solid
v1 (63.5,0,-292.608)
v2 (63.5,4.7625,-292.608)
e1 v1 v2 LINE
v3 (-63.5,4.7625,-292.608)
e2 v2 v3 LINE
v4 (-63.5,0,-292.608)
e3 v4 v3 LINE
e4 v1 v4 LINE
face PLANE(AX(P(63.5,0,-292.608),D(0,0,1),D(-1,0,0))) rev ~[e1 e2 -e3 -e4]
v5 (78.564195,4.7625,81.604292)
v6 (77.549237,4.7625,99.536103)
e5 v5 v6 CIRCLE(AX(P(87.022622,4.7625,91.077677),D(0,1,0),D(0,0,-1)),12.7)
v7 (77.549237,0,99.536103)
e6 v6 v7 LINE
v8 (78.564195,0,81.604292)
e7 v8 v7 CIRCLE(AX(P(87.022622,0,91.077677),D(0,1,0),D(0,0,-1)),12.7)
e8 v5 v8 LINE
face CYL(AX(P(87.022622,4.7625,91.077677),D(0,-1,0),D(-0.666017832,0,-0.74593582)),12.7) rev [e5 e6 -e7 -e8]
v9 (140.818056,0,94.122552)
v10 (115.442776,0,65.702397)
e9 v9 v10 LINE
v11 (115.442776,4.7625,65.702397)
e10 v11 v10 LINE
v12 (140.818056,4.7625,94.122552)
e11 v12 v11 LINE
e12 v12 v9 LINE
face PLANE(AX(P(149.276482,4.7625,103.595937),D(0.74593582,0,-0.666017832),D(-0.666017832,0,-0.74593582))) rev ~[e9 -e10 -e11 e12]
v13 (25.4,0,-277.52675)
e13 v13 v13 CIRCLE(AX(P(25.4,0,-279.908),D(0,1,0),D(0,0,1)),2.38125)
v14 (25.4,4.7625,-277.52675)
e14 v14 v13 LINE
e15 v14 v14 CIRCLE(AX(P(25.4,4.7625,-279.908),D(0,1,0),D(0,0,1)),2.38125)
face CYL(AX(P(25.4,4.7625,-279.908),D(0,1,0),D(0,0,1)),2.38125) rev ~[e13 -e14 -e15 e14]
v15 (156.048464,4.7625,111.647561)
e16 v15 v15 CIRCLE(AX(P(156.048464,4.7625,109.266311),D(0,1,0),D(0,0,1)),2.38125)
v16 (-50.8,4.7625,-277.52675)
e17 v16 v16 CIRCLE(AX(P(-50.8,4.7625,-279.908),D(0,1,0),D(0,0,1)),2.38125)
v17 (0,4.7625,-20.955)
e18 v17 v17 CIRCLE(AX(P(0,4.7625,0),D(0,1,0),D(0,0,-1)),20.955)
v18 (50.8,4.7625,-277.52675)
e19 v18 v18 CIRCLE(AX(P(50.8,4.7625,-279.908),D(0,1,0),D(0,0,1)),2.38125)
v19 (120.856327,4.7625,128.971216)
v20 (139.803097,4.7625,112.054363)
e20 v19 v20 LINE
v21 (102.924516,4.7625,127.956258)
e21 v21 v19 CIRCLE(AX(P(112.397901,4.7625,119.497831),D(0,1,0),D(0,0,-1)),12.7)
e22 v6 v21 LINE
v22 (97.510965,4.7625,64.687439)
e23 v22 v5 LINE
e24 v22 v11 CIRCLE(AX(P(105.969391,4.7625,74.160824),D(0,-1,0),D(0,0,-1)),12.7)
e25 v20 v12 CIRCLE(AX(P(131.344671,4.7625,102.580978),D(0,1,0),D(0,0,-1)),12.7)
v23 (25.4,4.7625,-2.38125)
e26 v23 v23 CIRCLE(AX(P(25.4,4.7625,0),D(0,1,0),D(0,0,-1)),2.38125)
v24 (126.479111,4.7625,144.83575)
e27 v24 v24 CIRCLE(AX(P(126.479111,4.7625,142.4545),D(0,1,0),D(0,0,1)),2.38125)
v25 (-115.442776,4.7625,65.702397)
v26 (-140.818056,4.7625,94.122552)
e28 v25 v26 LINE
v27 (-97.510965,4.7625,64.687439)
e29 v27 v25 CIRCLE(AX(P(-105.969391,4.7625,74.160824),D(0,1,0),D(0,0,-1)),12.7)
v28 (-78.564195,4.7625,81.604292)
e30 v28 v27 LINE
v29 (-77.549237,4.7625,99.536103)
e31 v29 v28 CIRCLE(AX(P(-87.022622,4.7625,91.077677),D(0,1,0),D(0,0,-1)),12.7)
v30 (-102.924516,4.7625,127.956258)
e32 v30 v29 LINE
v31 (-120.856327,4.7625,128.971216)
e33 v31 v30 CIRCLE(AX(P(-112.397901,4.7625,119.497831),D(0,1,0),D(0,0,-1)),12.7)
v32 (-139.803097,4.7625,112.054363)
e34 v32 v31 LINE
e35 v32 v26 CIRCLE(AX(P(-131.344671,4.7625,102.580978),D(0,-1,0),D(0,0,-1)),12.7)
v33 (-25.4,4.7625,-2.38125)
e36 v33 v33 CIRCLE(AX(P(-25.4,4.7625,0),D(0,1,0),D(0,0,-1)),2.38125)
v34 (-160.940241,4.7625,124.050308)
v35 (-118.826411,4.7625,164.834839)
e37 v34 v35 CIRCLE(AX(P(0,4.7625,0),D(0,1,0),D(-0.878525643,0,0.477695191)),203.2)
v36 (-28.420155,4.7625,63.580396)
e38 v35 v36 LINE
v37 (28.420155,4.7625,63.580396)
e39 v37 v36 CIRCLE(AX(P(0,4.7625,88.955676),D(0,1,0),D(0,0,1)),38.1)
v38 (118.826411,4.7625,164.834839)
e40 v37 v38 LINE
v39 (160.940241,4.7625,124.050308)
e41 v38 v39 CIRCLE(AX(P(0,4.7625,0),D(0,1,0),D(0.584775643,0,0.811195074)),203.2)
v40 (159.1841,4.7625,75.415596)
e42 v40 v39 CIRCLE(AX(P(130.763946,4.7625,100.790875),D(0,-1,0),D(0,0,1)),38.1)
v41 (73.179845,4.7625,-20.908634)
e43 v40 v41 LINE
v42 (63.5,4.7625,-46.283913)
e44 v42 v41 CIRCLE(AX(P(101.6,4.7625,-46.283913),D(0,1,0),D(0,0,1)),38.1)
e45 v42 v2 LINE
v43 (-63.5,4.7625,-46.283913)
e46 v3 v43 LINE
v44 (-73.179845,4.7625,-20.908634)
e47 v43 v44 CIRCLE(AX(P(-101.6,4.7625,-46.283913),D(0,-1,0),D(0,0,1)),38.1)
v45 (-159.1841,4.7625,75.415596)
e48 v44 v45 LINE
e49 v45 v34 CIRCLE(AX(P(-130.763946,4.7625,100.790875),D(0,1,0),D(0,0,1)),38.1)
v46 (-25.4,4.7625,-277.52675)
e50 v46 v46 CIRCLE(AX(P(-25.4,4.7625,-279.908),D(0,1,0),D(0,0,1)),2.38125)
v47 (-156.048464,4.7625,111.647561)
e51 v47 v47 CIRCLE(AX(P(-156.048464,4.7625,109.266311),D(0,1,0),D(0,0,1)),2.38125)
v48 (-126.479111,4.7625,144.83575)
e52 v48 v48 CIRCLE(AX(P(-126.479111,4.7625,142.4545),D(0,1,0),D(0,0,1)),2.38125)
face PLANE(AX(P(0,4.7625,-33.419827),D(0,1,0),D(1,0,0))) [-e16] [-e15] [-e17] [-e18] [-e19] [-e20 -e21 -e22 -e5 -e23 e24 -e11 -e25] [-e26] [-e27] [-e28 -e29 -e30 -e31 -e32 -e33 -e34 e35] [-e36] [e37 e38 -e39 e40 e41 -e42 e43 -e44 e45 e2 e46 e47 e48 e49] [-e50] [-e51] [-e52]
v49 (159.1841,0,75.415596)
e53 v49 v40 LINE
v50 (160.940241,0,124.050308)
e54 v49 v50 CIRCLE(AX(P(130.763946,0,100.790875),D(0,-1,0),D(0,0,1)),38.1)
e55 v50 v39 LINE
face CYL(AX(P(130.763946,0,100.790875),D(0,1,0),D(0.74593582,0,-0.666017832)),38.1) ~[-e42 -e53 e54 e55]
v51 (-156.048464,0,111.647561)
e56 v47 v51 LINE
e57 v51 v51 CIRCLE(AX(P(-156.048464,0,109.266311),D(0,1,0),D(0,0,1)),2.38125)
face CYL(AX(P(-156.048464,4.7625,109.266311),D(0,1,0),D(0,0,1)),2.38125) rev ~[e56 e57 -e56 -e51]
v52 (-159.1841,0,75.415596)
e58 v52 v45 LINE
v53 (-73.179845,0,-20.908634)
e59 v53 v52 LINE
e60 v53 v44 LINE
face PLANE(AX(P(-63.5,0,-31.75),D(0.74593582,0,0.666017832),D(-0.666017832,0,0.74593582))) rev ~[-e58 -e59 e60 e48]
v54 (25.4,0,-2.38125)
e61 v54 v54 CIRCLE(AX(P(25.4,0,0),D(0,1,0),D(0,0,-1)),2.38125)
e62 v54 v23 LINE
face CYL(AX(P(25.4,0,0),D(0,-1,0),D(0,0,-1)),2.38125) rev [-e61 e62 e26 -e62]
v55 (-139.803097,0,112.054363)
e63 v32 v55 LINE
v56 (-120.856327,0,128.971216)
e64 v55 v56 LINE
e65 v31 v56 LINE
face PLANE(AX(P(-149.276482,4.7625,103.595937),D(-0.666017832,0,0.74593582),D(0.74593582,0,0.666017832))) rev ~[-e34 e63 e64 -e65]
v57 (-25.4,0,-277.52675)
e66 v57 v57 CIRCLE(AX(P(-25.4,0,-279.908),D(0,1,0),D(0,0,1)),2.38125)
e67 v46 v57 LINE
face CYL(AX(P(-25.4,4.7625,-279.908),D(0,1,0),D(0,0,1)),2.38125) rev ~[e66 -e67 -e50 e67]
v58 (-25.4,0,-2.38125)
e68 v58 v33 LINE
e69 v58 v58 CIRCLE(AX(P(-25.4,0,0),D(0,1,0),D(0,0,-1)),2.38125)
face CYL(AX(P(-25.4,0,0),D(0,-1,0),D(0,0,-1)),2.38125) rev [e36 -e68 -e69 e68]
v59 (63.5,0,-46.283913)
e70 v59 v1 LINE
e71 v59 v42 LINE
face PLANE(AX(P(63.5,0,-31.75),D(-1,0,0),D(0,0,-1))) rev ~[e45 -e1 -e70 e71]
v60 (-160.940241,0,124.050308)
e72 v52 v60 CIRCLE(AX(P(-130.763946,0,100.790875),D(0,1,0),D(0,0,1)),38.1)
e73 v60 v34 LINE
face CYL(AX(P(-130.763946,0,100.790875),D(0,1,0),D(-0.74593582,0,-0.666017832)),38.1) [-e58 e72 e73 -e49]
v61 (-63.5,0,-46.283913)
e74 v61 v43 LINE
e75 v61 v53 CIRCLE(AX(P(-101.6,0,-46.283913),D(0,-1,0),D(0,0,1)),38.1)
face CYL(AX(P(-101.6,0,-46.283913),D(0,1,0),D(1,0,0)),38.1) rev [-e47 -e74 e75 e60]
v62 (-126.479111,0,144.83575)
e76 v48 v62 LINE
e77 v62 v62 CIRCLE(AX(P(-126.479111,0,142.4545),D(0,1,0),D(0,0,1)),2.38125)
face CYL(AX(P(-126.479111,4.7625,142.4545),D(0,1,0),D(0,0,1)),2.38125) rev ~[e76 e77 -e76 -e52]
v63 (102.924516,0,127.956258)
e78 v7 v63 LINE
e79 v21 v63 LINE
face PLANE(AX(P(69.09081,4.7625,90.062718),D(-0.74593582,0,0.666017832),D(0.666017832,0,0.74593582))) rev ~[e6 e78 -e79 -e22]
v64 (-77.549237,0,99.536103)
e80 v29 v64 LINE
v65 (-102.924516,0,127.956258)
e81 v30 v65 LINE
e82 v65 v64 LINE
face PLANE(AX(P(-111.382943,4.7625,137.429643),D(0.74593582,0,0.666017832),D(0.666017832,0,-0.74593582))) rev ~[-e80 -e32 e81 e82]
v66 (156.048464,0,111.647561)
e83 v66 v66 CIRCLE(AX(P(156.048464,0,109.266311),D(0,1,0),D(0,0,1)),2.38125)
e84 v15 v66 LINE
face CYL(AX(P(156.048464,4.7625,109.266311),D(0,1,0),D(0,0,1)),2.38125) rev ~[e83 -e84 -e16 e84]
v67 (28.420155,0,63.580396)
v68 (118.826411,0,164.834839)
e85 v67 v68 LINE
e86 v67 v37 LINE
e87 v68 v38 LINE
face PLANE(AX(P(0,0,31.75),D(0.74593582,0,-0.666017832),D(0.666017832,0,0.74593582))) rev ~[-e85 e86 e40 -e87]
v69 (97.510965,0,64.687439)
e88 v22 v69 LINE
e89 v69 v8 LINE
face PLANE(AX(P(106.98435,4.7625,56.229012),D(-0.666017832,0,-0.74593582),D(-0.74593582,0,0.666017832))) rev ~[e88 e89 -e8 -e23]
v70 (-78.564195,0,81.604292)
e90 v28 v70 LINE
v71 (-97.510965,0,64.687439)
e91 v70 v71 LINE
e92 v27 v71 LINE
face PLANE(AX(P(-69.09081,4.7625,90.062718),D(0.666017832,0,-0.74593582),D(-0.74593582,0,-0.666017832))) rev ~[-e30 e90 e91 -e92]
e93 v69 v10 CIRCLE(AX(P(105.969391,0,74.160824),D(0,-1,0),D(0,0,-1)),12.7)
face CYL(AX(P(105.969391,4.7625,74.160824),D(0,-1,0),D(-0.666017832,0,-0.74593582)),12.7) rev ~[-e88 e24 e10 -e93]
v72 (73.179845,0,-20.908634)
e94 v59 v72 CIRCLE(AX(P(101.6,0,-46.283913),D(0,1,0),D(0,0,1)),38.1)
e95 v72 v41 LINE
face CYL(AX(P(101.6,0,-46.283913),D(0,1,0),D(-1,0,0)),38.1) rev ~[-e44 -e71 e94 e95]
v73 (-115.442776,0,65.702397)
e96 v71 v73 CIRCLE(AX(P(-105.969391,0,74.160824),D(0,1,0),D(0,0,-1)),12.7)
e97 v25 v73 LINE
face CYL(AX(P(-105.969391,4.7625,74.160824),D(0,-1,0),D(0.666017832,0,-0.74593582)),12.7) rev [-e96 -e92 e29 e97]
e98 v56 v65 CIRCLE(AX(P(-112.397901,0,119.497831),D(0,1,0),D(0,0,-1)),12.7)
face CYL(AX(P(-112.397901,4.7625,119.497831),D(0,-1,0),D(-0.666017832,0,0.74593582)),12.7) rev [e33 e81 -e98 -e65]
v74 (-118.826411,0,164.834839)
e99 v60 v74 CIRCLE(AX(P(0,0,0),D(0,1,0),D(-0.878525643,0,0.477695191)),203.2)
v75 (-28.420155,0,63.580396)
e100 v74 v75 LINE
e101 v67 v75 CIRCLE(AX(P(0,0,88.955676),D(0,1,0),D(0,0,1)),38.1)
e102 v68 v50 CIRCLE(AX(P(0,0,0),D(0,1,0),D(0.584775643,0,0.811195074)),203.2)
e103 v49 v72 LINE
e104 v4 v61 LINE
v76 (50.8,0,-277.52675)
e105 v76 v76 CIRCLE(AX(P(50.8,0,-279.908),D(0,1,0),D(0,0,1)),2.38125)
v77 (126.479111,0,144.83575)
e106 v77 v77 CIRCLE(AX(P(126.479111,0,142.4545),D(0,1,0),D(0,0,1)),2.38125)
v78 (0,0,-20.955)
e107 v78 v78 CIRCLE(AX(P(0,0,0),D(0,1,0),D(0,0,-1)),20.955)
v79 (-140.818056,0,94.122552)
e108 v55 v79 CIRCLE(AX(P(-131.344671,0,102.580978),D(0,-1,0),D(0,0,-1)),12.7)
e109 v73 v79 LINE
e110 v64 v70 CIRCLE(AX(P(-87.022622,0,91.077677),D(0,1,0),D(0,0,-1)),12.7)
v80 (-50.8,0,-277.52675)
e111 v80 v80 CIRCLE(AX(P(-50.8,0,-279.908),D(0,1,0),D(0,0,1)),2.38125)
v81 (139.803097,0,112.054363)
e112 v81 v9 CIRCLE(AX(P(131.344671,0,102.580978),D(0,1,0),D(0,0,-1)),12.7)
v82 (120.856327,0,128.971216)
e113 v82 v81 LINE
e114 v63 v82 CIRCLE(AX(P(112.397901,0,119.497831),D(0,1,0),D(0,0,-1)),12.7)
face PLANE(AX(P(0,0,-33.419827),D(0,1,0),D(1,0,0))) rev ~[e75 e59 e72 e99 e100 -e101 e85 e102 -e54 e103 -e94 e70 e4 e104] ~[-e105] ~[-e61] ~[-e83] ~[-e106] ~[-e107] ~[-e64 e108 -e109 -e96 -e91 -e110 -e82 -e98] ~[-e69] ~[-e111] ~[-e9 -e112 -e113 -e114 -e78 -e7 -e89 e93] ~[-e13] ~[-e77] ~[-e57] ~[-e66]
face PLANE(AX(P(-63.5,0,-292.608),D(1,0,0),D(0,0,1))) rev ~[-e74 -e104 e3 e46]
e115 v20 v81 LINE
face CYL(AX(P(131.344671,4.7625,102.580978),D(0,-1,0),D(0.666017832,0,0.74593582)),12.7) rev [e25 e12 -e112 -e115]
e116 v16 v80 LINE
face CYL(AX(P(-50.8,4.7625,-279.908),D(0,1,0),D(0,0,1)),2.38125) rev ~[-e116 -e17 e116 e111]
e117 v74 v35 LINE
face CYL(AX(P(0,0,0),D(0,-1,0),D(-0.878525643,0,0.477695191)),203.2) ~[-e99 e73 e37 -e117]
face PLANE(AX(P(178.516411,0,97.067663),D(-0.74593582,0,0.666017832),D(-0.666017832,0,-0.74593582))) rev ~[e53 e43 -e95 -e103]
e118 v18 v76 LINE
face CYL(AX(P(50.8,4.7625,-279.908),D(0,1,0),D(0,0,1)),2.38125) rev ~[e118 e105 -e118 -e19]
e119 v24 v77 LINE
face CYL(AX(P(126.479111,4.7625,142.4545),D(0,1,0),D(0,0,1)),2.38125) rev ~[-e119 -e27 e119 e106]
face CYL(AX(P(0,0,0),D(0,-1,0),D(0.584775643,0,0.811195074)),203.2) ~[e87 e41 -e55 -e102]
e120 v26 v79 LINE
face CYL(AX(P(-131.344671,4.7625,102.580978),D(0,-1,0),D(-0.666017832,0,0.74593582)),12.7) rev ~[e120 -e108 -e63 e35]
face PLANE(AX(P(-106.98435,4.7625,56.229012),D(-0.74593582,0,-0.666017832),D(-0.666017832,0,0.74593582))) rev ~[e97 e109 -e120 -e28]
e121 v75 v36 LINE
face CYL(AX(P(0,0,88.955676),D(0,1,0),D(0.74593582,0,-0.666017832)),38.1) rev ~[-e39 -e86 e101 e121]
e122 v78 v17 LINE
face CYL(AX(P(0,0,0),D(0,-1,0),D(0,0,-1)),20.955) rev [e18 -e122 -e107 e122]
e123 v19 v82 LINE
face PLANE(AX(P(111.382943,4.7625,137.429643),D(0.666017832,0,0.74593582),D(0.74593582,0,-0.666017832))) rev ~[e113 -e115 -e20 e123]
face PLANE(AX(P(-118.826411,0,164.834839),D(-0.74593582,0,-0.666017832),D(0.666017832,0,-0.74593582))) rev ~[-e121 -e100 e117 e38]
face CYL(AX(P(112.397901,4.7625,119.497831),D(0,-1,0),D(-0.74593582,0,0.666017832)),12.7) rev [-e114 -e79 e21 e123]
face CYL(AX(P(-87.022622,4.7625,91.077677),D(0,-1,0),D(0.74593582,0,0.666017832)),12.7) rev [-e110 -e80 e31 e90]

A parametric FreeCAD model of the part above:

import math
import FreeCAD as App
import Part
import Sketcher
from FreeCAD import Vector
Q = App.Units.Quantity


def edges_at(feature, points):
    """Names of the edges that pass closest to the given points."""
    edges = feature.Shape.Edges
    near = lambda p: min(range(len(edges)), key=lambda i: edges[i].distToShape(Part.Vertex(*p))[0])
    return sorted({f"Edge{near(p) + 1}" for p in points})


def add_polygon(sketch, points):
    """Adds a closed chain of lines whose ends are joined by coincident constraints."""
    first, n = sketch.GeometryCount, len(points)
    for a, b in zip(points, points[1:] + points[:1]):
        sketch.addGeometry(Part.LineSegment(App.Vector(*a, 0), App.Vector(*b, 0)), False)
    for i in range(n):
        sketch.addConstraint(Sketcher.Constraint("Coincident", first + i, 2, first + (i + 1) % n, 1))

doc = App.newDocument("Part")
params = doc.addObject("Spreadsheet::Sheet", "Params")
for row, (alias, value) in enumerate([
    ("sketch1_radius", "8 in"),
    ("sketch1_diameter", "1.65 in"),
    ("sketch1_width", "5 in"),
    ("sketch1_diameter2", "0.1875 in"),
    ("sketch1_height", "10.27 in"),
    ("pad1_length", "0.1875 in"),
    ("sketch2_diameter", "0.1875 in"),
    ("fillet_radius", "1.5 in"),
    ("sketch3_diameter", "0.1875 in"),
    ("fillet2_radius", "1.5 in"),
    ("sketch4_length", "2 in"),
    ("sketch4_length2", "2.5 in"),
    ("fillet3_radius", "0.5 in"),
], start=1):
    params.set(f"A{row}", alias)
    params.set(f"B{row}", "=" + value)
    params.setAlias(f"B{row}", alias)

body = doc.addObject("PartDesign::Body", "Body")

# Sketch on XZ plane
sketch1 = body.newObject("Sketcher::SketchObject", "Sketch")
sketch1.AttachmentSupport = (doc.getObject("XZ_Plane"), [""])
sketch1.MapMode = "FlatFace"
sketch1.addGeometry([
    Part.LineSegment(Vector(63.5, -31.8, 0), Vector(63.5, -292.6, 0)),  # 0
    Part.LineSegment(Vector(63.5, -292.6, 0), Vector(-63.5, -292.6, 0)),  # 1
    Part.LineSegment(Vector(-63.5, -292.6, 0), Vector(-63.5, -31.8, 0)),  # 2
    Part.LineSegment(Vector(-63.5, -31.8, 0), Vector(-178.5, 97.1, 0)),  # 3
    Part.ArcOfCircle(Part.Circle(Vector(0, 0, 0), Vector(0, 0, 1), 203.2), math.radians(126), math.radians(151)),  # 4
    Part.LineSegment(Vector(-118.8, 164.8, 0), Vector(0, 31.8, 0)),  # 5
    Part.LineSegment(Vector(0, 31.8, 0), Vector(118.8, 164.8, 0)),  # 6
    Part.ArcOfCircle(Part.Circle(Vector(0, 0, 0), Vector(0, 0, 1), 203.2), math.radians(29), math.radians(54)),  # 7
    Part.LineSegment(Vector(178.5, 97.1, 0), Vector(63.5, -31.8, 0)),  # 8
    Part.Circle(Vector(-25.4, 0, 0), Vector(0, 0, 1), 2.4),  # 9
    Part.Circle(Vector(0, 0, 0), Vector(0, 0, 1), 21),  # 10
    Part.Circle(Vector(25.4, 0, 0), Vector(0, 0, 1), 2.4),  # 11
], False)
sketch1.addConstraint([
    Sketcher.Constraint("Coincident", 0, 2, 1, 1),
    Sketcher.Constraint("Coincident", 1, 2, 2, 1),
    Sketcher.Constraint("Coincident", 2, 2, 3, 1),
    Sketcher.Constraint("Coincident", 3, 2, 4, 2),
    Sketcher.Constraint("Coincident", 4, 1, 5, 1),
    Sketcher.Constraint("Coincident", 5, 2, 6, 1),
    Sketcher.Constraint("Coincident", 6, 2, 7, 2),
    Sketcher.Constraint("Coincident", 7, 1, 8, 1),
    Sketcher.Constraint("Coincident", 8, 2, 0, 1),
    Sketcher.Constraint("Vertical", 0),
    Sketcher.Constraint("Horizontal", 1),
    Sketcher.Constraint("Vertical", 2),
    Sketcher.Constraint("Coincident", 4, 3, -1, 1),
    Sketcher.Constraint("Coincident", 7, 3, -1, 1),
    Sketcher.Constraint("Coincident", 10, 3, -1, 1),
    Sketcher.Constraint("Equal", 4, 7),
    Sketcher.Constraint("Equal", 9, 11),
    Sketcher.Constraint("Symmetric", 9, 3, 11, 3, -1, 1),
    Sketcher.Constraint("Symmetric", 2, 2, 8, 2, -2),
    Sketcher.Constraint("PointOnObject", 9, 3, -1),
    Sketcher.Constraint("PointOnObject", 5, 2, -2),
    Sketcher.Constraint("Parallel", 3, 5),
    Sketcher.Constraint("Parallel", 6, 8),
    Sketcher.Constraint("Horizontal", 4, 1, 6, 2),
    Sketcher.Constraint("Radius", 4, Q("8 in")),
    Sketcher.Constraint("Diameter", 10, Q("1.65 in")),
    Sketcher.Constraint("DistanceX", 1, 2, 1, 1, Q("5 in")),
    Sketcher.Constraint("Diameter", 9, Q("0.1875 in")),
    Sketcher.Constraint("DistanceX", 9, 3, -1, 1, Q("1 in")),
    Sketcher.Constraint("DistanceY", 0, 2, 0, 1, Q("10.27 in")),
    Sketcher.Constraint("DistanceY", 8, 2, 5, 2, Q("2.5 in")),
    Sketcher.Constraint("DistanceY", 0, 2, -1, 1, Q("11.52 in")),
    Sketcher.Constraint("Distance", 3, Q("172.692689 mm")),
])
sketch1.setExpression("Constraints[24]", "Params.sketch1_radius")
sketch1.setExpression("Constraints[25]", "Params.sketch1_diameter")
sketch1.setExpression("Constraints[26]", "Params.sketch1_width")
sketch1.setExpression("Constraints[27]", "Params.sketch1_diameter2")
sketch1.setExpression("Constraints[29]", "Params.sketch1_height")
pad1 = body.newObject("PartDesign::Pad", "Pad")
pad1.Profile = sketch1
pad1.setExpression("Length", "Params.pad1_length")
pad1.Reversed = True

# Sketch on XZ plane
sketch2 = body.newObject("Sketcher::SketchObject", "Sketch001")
sketch2.AttachmentSupport = (doc.getObject("XZ_Plane"), [""])
sketch2.MapMode = "FlatFace"
sketch2.AttachmentOffset = App.Placement(Vector(0, 0, -0.1875 * 25.4), App.Rotation())
sketch2.addGeometry([
    Part.Circle(Vector(25.4, -279.9, 0), Vector(0, 0, 1), 2.4),
    Part.Circle(Vector(50.8, -279.9, 0), Vector(0, 0, 1), 2.4),
    Part.Circle(Vector(-50.8, -279.9, 0), Vector(0, 0, 1), 2.4),
    Part.Circle(Vector(-25.4, -279.9, 0), Vector(0, 0, 1), 2.4),
], False)
sketch2.addConstraint([
    Sketcher.Constraint("Equal", 0, 1),
    Sketcher.Constraint("Equal", 1, 2),
    Sketcher.Constraint("Equal", 2, 3),
    Sketcher.Constraint("Symmetric", 1, 3, 2, 3, -2),
    Sketcher.Constraint("Symmetric", 0, 3, 3, 3, -2),
    Sketcher.Constraint("Horizontal", 0, 3, 1, 3),
    Sketcher.Constraint("Diameter", 0, Q("0.1875 in")),
    Sketcher.Constraint("DistanceX", -1, 1, 0, 3, Q("1 in")),
    Sketcher.Constraint("DistanceX", -1, 1, 1, 3, Q("2 in")),
    Sketcher.Constraint("DistanceY", 0, 3, -1, 1, Q("11.02 in")),
])
sketch2.setExpression("Constraints[6]", "Params.sketch2_diameter")
pocket1 = body.newObject("PartDesign::Pocket", "Pocket")
pocket1.Profile = sketch2
pocket1.Type = "ThroughAll"
pocket1.Reversed = True
doc.recompute()

fillet = body.newObject("PartDesign::Fillet", "Fillet")
fillet.Base = (pocket1, edges_at(pocket1, [(63.5, 2.381, -31.75), (0, 2.381, 31.75), (-63.5, 2.381, -31.75)]))
fillet.setExpression("Radius", "Params.fillet_radius")

# Sketch on XZ plane
sketch3 = body.newObject("Sketcher::SketchObject", "Sketch002")
sketch3.AttachmentSupport = (doc.getObject("XZ_Plane"), [""])
sketch3.MapMode = "FlatFace"
sketch3.AttachmentOffset = App.Placement(Vector(0, 0, -0.1875 * 25.4), App.Rotation())
sketch3.addGeometry([
    Part.Circle(Vector(-156, 109.3, 0), Vector(0, 0, 1), 2.4),
    Part.Circle(Vector(-126.5, 142.5, 0), Vector(0, 0, 1), 2.4),
    Part.Circle(Vector(126.5, 142.5, 0), Vector(0, 0, 1), 2.4),
    Part.Circle(Vector(156, 109.3, 0), Vector(0, 0, 1), 2.4),
], False)
sketch3.addConstraint([
    Sketcher.Constraint("Equal", 0, 1),
    Sketcher.Constraint("Equal", 1, 2),
    Sketcher.Constraint("Equal", 2, 3),
    Sketcher.Constraint("Symmetric", 1, 3, 2, 3, -2),
    Sketcher.Constraint("Symmetric", 0, 3, 3, 3, -2),
    Sketcher.Constraint("Diameter", 0, Q("0.1875 in")),
    Sketcher.Constraint("DistanceY", -1, 1, 1, 3, Q("142.4545 mm")),
    Sketcher.Constraint("DistanceY", -1, 1, 0, 3, Q("109.266311 mm")),
    Sketcher.Constraint("DistanceX", 1, 3, -1, 1, Q("126.479111 mm")),
    Sketcher.Constraint("DistanceX", 0, 3, 3, 3, Q("312.096929 mm")),
])
sketch3.setExpression("Constraints[5]", "Params.sketch3_diameter")
pocket2 = body.newObject("PartDesign::Pocket", "Pocket001")
pocket2.Profile = sketch3
pocket2.Type = "ThroughAll"
pocket2.Reversed = True
doc.recompute()

fillet2 = body.newObject("PartDesign::Fillet", "Fillet001")
fillet2.Base = (pocket2, edges_at(pocket2, [(178.516, 2.381, 97.068), (-178.516, 2.381, 97.068)]))
fillet2.setExpression("Radius", "Params.fillet2_radius")

# Sketch on XZ plane
sketch4 = body.newObject("Sketcher::SketchObject", "Sketch003")
sketch4.AttachmentSupport = (doc.getObject("XZ_Plane"), [""])
sketch4.MapMode = "FlatFace"
sketch4.AttachmentOffset = App.Placement(Vector(0, 0, -0.1875 * 25.4), App.Rotation())
add_polygon(sketch4, [(-149, 104), (-111, 137), (-69, 90), (-107, 56)])  # lines 0-3
add_polygon(sketch4, [(107, 56), (69, 90), (111, 137), (149, 104)])  # lines 4-7
sketch4.addConstraint([
    Sketcher.Constraint("Symmetric", 1, 2, 4, 2, -2),
    Sketcher.Constraint("Symmetric", 0, 2, 5, 2, -2),
    Sketcher.Constraint("Symmetric", 3, 2, 6, 2, -2),
    Sketcher.Constraint("Symmetric", 2, 2, 7, 2, -2),
    Sketcher.Constraint("Perpendicular", 0, 1),
    Sketcher.Constraint("Perpendicular", 1, 2),
    Sketcher.Constraint("Perpendicular", 2, 3),
    Sketcher.Constraint("Distance", 0, Q("2 in")),
    Sketcher.Constraint("Distance", 1, Q("2.5 in")),
    Sketcher.Constraint("DistanceX", 2, 2, 7, 2, Q("213.9687 mm")),
    Sketcher.Constraint("DistanceX", 1, 2, -1, 1, Q("69.09081 mm")),
    Sketcher.Constraint("DistanceY", -1, 1, 1, 2, Q("90.062718 mm")),
])
sketch4.setExpression("Constraints[15]", "Params.sketch4_length")
sketch4.setExpression("Constraints[16]", "Params.sketch4_length2")
pocket3 = body.newObject("PartDesign::Pocket", "Pocket002")
pocket3.Profile = sketch4
pocket3.Type = "ThroughAll"
pocket3.Reversed = True
doc.recompute()

fillet3 = body.newObject("PartDesign::Fillet", "Fillet002")
fillet3.Base = (pocket3, edges_at(pocket3, [
    (-149.276, 2.381, 103.596),
    (-106.984, 2.381, 56.229),
    (-69.091, 2.381, 90.063),
    (-111.383, 2.381, 137.43),
    (106.984, 2.381, 56.229),
    (149.276, 2.381, 103.596),
    (111.383, 2.381, 137.43),
    (69.091, 2.381, 90.063),
]))
fillet3.setExpression("Radius", "Params.fillet3_radius")

doc.recompute()
